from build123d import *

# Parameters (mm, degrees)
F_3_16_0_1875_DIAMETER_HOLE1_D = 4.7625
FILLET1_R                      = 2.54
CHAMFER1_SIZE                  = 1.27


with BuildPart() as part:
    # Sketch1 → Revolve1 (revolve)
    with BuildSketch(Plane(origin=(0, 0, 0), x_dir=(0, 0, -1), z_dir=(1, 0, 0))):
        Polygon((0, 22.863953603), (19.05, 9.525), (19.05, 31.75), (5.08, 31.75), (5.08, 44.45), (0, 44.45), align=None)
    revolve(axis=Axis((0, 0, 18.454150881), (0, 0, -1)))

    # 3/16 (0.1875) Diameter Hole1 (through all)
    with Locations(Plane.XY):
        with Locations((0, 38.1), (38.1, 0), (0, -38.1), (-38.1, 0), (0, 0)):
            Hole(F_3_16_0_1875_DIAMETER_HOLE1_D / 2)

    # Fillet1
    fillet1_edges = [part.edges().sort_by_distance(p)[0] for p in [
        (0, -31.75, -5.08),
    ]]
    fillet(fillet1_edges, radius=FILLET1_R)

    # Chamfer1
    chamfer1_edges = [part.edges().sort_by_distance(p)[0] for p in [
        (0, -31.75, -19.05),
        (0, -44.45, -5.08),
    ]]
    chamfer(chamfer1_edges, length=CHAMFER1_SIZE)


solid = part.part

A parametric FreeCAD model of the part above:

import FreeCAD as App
import Part
import Sketcher
Q = App.Units.Quantity


def edges_at(feature, points):
    """Names of the edges that pass closest to the given points."""
    edges = feature.Shape.Edges
    near = lambda p: min(range(len(edges)), key=lambda i: edges[i].distToShape(Part.Vertex(*p))[0])
    return sorted({f"Edge{near(p) + 1}" for p in points})

doc = App.newDocument("Part")
params = doc.addObject("Spreadsheet::Sheet", "Params")
for row, (alias, value) in enumerate([
    ("sketch1_width", "0.5 in"),
    ("sketch1_height", "0.2 in"),
    ("sketch1_height2", "0.55 in"),
    ("sketch1_width2", "0.875 in"),
    ("revolution_angle", "360 deg"),
    ("sketch2_diameter", "0.1875 in"),
    ("hole_diameter", "0.1875 in"),
    ("fillet_radius", "0.1 in"),
    ("chamfer_size", "0.05 in"),
], start=1):
    params.set(f"A{row}", alias)
    params.set(f"B{row}", "=" + value)
    params.setAlias(f"B{row}", alias)

body = doc.addObject("PartDesign::Body", "Body")

sketch1 = body.newObject("Sketcher::SketchObject", "Sketch")
sketch1.AttachmentSupport = (doc.getObject("YZ_Plane"), [""])
sketch1.MapMode = "FlatFace"
sketch1.addGeometry([
    Part.LineSegment(App.Vector(22.863954, 0, 0), App.Vector(9.525, -19.05, 0)),
    Part.LineSegment(App.Vector(9.525, -19.05, 0), App.Vector(31.75, -19.05, 0)),
    Part.LineSegment(App.Vector(31.75, -19.05, 0), App.Vector(31.75, -5.08, 0)),
    Part.LineSegment(App.Vector(31.75, -5.08, 0), App.Vector(44.45, -5.08, 0)),
    Part.LineSegment(App.Vector(44.45, -5.08, 0), App.Vector(44.45, 0, 0)),
    Part.LineSegment(App.Vector(44.45, 0, 0), App.Vector(22.863954, 0, 0)),
], False)
sketch1.addConstraint([
    Sketcher.Constraint("Coincident", 0, 2, 1, 1),
    Sketcher.Constraint("Coincident", 1, 2, 2, 1),
    Sketcher.Constraint("Coincident", 2, 2, 3, 1),
    Sketcher.Constraint("Coincident", 3, 2, 4, 1),
    Sketcher.Constraint("Coincident", 4, 2, 5, 1),
    Sketcher.Constraint("Coincident", 5, 2, 0, 1),
    Sketcher.Constraint("Horizontal", 1),
    Sketcher.Constraint("Vertical", 2),
    Sketcher.Constraint("Horizontal", 3),
    Sketcher.Constraint("Vertical", 4),
    Sketcher.Constraint("Horizontal", 5),
    Sketcher.Constraint("PointOnObject", 4, 2, -1),
    Sketcher.Constraint("DistanceX", 3, 1, 3, 2, Q("0.5 in")),
    Sketcher.Constraint("DistanceY", 4, 1, 4, 2, Q("0.2 in")),
    Sketcher.Constraint("Angle", 0, Q("-125 deg")),
    Sketcher.Constraint("DistanceY", 2, 1, 2, 2, Q("0.55 in")),
    Sketcher.Constraint("DistanceX", 1, 1, 1, 2, Q("0.875 in")),
    Sketcher.Constraint("DistanceX", -1, 1, 1, 2, Q("1.25 in")),
])
sketch1.setExpression("Constraints[12]", "Params.sketch1_width")
sketch1.setExpression("Constraints[13]", "Params.sketch1_height")
sketch1.setExpression("Constraints[15]", "Params.sketch1_height2")
sketch1.setExpression("Constraints[16]", "Params.sketch1_width2")
revolution = body.newObject("PartDesign::Revolution", "Revolution")
revolution.Profile = sketch1
revolution.ReferenceAxis = (sketch1, ["V_Axis"])
revolution.setExpression("Angle", "Params.revolution_angle")

sketch2 = body.newObject("Sketcher::SketchObject", "Sketch001")
sketch2.AttachmentSupport = (doc.getObject("XY_Plane"), [""])
sketch2.MapMode = "FlatFace"
sketch2.addGeometry([
    Part.Circle(App.Vector(0, 38.1, 0), App.Vector(0, 0, 1), 2.38125),
    Part.Circle(App.Vector(38.1, 0, 0), App.Vector(0, 0, 1), 2.38125),
    Part.Circle(App.Vector(0, -38.1, 0), App.Vector(0, 0, 1), 2.38125),
    Part.Circle(App.Vector(-38.1, 0, 0), App.Vector(0, 0, 1), 2.38125),
    Part.Circle(App.Vector(0, 0, 0), App.Vector(0, 0, 1), 2.38125),
], False)
sketch2.addConstraint([
    Sketcher.Constraint("Coincident", 4, 3, -1, 1),
    Sketcher.Constraint("Equal", 0, 1),
    Sketcher.Constraint("Equal", 1, 2),
    Sketcher.Constraint("Equal", 2, 3),
    Sketcher.Constraint("Equal", 3, 4),
    Sketcher.Constraint("Symmetric", 0, 3, 2, 3, -1, 1),
    Sketcher.Constraint("Symmetric", 1, 3, 3, 3, -1, 1),
    Sketcher.Constraint("PointOnObject", 0, 3, -2),
    Sketcher.Constraint("PointOnObject", 1, 3, -1),
    Sketcher.Constraint("Diameter", 0, Q("0.1875 in")),
    Sketcher.Constraint("DistanceY", 2, 3, 0, 3, Q("3 in")),
    Sketcher.Constraint("DistanceX", 3, 3, 1, 3, Q("3 in")),
])
sketch2.setExpression("Constraints[9]", "Params.sketch2_diameter")
doc.recompute()
hole = body.newObject("PartDesign::Hole", "Hole")
hole.Profile = sketch2
hole.ThreadType = "None"
hole.setExpression("Diameter", "Params.hole_diameter")
hole.DepthType = "ThroughAll"
doc.recompute()

fillet = body.newObject("PartDesign::Fillet", "Fillet")
fillet.Base = (hole, edges_at(hole, [(0, -31.75, -5.08)]))
fillet.setExpression("Radius", "Params.fillet_radius")
doc.recompute()

chamfer = body.newObject("PartDesign::Chamfer", "Chamfer")
chamfer.Base = (fillet, edges_at(fillet, [(0, -31.75, -19.05), (0, -44.45, -5.08)]))
chamfer.setExpression("Size", "Params.chamfer_size")

doc.recompute()
